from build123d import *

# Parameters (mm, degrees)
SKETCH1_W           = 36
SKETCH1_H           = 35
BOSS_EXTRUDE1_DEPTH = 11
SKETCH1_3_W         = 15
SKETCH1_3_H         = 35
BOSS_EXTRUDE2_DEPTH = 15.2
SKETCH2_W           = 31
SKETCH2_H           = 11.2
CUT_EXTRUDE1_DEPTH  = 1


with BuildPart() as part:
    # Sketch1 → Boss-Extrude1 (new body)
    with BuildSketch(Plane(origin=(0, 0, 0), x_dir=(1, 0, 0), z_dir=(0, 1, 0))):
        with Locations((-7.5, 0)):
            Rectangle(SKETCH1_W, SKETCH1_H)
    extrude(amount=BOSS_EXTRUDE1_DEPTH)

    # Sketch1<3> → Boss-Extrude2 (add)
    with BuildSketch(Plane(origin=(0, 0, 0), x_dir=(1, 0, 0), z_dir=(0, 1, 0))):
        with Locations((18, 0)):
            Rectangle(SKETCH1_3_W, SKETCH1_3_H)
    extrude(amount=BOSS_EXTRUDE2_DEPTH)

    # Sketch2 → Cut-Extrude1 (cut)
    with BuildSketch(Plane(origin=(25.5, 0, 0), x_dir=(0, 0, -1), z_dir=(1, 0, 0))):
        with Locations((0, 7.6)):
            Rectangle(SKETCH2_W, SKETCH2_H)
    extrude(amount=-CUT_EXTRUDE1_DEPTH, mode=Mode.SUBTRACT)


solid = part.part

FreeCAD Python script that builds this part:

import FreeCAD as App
import Part
import Sketcher

V = App.Vector

doc = App.newDocument("Part")
body = doc.addObject("PartDesign::Body", "Body")

# Sketch on XZ plane
sketch1 = body.newObject("Sketcher::SketchObject", "Sketch")
sketch1.AttachmentSupport = (doc.getObject("XZ_Plane"), [""])
sketch1.MapMode = "FlatFace"
sketch1.addGeometry(Part.LineSegment(V(-26, -18, 0), V(-26, 18, 0)), False)
sketch1.addGeometry(Part.LineSegment(V(-26, 18, 0), V(10, 18, 0)), False)
sketch1.addGeometry(Part.LineSegment(V(10, 18, 0), V(10, -18, 0)), False)
sketch1.addGeometry(Part.LineSegment(V(10, -18, 0), V(-26, -18, 0)), False)
sketch1.addConstraint(Sketcher.Constraint("Coincident", 0, 2, 1, 1))
sketch1.addConstraint(Sketcher.Constraint("Coincident", 1, 2, 2, 1))
sketch1.addConstraint(Sketcher.Constraint("Coincident", 2, 2, 3, 1))
sketch1.addConstraint(Sketcher.Constraint("Coincident", 3, 2, 0, 1))
sketch1.addConstraint(Sketcher.Constraint("Vertical", 0))
sketch1.addConstraint(Sketcher.Constraint("Horizontal", 1))
sketch1.addConstraint(Sketcher.Constraint("Vertical", 2))
sketch1.addConstraint(Sketcher.Constraint("Horizontal", 3))
sketch1.addConstraint(Sketcher.Constraint("DistanceX", 1, 1, 1, 2, 36.0))
sketch1.addConstraint(Sketcher.Constraint("DistanceY", 0, 1, 0, 2, 35.0))
sketch1.addConstraint(Sketcher.Constraint("DistanceX", 0, 2, -1, 1, 25.5))
sketch1.addConstraint(Sketcher.Constraint("DistanceY", -1, 1, 0, 2, 17.5))
pad1 = body.newObject("PartDesign::Pad", "Pad")
pad1.Profile = sketch1
pad1.Length = 11
pad1.Reversed = True

# Sketch on XZ plane
sketch2 = body.newObject("Sketcher::SketchObject", "Sketch001")
sketch2.AttachmentSupport = (doc.getObject("XZ_Plane"), [""])
sketch2.MapMode = "FlatFace"
sketch2.addGeometry(Part.LineSegment(V(10, -18, 0), V(10, 18, 0)), False)
sketch2.addGeometry(Part.LineSegment(V(10, 18, 0), V(26, 18, 0)), False)
sketch2.addGeometry(Part.LineSegment(V(26, 18, 0), V(26, -18, 0)), False)
sketch2.addGeometry(Part.LineSegment(V(26, -18, 0), V(10, -18, 0)), False)
sketch2.addConstraint(Sketcher.Constraint("Coincident", 0, 2, 1, 1))
sketch2.addConstraint(Sketcher.Constraint("Coincident", 1, 2, 2, 1))
sketch2.addConstraint(Sketcher.Constraint("Coincident", 2, 2, 3, 1))
sketch2.addConstraint(Sketcher.Constraint("Coincident", 3, 2, 0, 1))
sketch2.addConstraint(Sketcher.Constraint("Vertical", 0))
sketch2.addConstraint(Sketcher.Constraint("Horizontal", 1))
sketch2.addConstraint(Sketcher.Constraint("Vertical", 2))
sketch2.addConstraint(Sketcher.Constraint("Horizontal", 3))
sketch2.addConstraint(Sketcher.Constraint("DistanceX", 1, 1, 1, 2, 15.0))
sketch2.addConstraint(Sketcher.Constraint("DistanceY", 0, 1, 0, 2, 35.0))
sketch2.addConstraint(Sketcher.Constraint("DistanceX", -1, 1, 0, 2, 10.5))
sketch2.addConstraint(Sketcher.Constraint("DistanceY", -1, 1, 0, 2, 17.5))
pad2 = body.newObject("PartDesign::Pad", "Pad001")
pad2.Profile = sketch2
pad2.Length = 15.2
pad2.Reversed = True

# Sketch on YZ plane
sketch3 = body.newObject("Sketcher::SketchObject", "Sketch002")
sketch3.AttachmentSupport = (doc.getObject("YZ_Plane"), [""])
sketch3.MapMode = "FlatFace"
sketch3.AttachmentOffset = App.Placement(V(0, 0, 25.5), App.Rotation())
sketch3.addGeometry(Part.LineSegment(V(13, 16, 0), V(2, 16, 0)), False)
sketch3.addGeometry(Part.LineSegment(V(2, 16, 0), V(2, -16, 0)), False)
sketch3.addGeometry(Part.LineSegment(V(2, -16, 0), V(13, -16, 0)), False)
sketch3.addGeometry(Part.LineSegment(V(13, -16, 0), V(13, 16, 0)), False)
sketch3.addConstraint(Sketcher.Constraint("Coincident", 0, 2, 1, 1))
sketch3.addConstraint(Sketcher.Constraint("Coincident", 1, 2, 2, 1))
sketch3.addConstraint(Sketcher.Constraint("Coincident", 2, 2, 3, 1))
sketch3.addConstraint(Sketcher.Constraint("Coincident", 3, 2, 0, 1))
sketch3.addConstraint(Sketcher.Constraint("Horizontal", 0))
sketch3.addConstraint(Sketcher.Constraint("Vertical", 1))
sketch3.addConstraint(Sketcher.Constraint("Horizontal", 2))
sketch3.addConstraint(Sketcher.Constraint("Vertical", 3))
sketch3.addConstraint(Sketcher.Constraint("DistanceY", 1, 2, 1, 1, 31.0))
sketch3.addConstraint(Sketcher.Constraint("DistanceX", 0, 2, 0, 1, 11.2))
sketch3.addConstraint(Sketcher.Constraint("DistanceX", -1, 1, 0, 2, 2.0))
sketch3.addConstraint(Sketcher.Constraint("DistanceY", -1, 1, 0, 2, 15.5))
pocket1 = body.newObject("PartDesign::Pocket", "Pocket")
pocket1.Profile = sketch3
pocket1.Length = 1

doc.recompute()
